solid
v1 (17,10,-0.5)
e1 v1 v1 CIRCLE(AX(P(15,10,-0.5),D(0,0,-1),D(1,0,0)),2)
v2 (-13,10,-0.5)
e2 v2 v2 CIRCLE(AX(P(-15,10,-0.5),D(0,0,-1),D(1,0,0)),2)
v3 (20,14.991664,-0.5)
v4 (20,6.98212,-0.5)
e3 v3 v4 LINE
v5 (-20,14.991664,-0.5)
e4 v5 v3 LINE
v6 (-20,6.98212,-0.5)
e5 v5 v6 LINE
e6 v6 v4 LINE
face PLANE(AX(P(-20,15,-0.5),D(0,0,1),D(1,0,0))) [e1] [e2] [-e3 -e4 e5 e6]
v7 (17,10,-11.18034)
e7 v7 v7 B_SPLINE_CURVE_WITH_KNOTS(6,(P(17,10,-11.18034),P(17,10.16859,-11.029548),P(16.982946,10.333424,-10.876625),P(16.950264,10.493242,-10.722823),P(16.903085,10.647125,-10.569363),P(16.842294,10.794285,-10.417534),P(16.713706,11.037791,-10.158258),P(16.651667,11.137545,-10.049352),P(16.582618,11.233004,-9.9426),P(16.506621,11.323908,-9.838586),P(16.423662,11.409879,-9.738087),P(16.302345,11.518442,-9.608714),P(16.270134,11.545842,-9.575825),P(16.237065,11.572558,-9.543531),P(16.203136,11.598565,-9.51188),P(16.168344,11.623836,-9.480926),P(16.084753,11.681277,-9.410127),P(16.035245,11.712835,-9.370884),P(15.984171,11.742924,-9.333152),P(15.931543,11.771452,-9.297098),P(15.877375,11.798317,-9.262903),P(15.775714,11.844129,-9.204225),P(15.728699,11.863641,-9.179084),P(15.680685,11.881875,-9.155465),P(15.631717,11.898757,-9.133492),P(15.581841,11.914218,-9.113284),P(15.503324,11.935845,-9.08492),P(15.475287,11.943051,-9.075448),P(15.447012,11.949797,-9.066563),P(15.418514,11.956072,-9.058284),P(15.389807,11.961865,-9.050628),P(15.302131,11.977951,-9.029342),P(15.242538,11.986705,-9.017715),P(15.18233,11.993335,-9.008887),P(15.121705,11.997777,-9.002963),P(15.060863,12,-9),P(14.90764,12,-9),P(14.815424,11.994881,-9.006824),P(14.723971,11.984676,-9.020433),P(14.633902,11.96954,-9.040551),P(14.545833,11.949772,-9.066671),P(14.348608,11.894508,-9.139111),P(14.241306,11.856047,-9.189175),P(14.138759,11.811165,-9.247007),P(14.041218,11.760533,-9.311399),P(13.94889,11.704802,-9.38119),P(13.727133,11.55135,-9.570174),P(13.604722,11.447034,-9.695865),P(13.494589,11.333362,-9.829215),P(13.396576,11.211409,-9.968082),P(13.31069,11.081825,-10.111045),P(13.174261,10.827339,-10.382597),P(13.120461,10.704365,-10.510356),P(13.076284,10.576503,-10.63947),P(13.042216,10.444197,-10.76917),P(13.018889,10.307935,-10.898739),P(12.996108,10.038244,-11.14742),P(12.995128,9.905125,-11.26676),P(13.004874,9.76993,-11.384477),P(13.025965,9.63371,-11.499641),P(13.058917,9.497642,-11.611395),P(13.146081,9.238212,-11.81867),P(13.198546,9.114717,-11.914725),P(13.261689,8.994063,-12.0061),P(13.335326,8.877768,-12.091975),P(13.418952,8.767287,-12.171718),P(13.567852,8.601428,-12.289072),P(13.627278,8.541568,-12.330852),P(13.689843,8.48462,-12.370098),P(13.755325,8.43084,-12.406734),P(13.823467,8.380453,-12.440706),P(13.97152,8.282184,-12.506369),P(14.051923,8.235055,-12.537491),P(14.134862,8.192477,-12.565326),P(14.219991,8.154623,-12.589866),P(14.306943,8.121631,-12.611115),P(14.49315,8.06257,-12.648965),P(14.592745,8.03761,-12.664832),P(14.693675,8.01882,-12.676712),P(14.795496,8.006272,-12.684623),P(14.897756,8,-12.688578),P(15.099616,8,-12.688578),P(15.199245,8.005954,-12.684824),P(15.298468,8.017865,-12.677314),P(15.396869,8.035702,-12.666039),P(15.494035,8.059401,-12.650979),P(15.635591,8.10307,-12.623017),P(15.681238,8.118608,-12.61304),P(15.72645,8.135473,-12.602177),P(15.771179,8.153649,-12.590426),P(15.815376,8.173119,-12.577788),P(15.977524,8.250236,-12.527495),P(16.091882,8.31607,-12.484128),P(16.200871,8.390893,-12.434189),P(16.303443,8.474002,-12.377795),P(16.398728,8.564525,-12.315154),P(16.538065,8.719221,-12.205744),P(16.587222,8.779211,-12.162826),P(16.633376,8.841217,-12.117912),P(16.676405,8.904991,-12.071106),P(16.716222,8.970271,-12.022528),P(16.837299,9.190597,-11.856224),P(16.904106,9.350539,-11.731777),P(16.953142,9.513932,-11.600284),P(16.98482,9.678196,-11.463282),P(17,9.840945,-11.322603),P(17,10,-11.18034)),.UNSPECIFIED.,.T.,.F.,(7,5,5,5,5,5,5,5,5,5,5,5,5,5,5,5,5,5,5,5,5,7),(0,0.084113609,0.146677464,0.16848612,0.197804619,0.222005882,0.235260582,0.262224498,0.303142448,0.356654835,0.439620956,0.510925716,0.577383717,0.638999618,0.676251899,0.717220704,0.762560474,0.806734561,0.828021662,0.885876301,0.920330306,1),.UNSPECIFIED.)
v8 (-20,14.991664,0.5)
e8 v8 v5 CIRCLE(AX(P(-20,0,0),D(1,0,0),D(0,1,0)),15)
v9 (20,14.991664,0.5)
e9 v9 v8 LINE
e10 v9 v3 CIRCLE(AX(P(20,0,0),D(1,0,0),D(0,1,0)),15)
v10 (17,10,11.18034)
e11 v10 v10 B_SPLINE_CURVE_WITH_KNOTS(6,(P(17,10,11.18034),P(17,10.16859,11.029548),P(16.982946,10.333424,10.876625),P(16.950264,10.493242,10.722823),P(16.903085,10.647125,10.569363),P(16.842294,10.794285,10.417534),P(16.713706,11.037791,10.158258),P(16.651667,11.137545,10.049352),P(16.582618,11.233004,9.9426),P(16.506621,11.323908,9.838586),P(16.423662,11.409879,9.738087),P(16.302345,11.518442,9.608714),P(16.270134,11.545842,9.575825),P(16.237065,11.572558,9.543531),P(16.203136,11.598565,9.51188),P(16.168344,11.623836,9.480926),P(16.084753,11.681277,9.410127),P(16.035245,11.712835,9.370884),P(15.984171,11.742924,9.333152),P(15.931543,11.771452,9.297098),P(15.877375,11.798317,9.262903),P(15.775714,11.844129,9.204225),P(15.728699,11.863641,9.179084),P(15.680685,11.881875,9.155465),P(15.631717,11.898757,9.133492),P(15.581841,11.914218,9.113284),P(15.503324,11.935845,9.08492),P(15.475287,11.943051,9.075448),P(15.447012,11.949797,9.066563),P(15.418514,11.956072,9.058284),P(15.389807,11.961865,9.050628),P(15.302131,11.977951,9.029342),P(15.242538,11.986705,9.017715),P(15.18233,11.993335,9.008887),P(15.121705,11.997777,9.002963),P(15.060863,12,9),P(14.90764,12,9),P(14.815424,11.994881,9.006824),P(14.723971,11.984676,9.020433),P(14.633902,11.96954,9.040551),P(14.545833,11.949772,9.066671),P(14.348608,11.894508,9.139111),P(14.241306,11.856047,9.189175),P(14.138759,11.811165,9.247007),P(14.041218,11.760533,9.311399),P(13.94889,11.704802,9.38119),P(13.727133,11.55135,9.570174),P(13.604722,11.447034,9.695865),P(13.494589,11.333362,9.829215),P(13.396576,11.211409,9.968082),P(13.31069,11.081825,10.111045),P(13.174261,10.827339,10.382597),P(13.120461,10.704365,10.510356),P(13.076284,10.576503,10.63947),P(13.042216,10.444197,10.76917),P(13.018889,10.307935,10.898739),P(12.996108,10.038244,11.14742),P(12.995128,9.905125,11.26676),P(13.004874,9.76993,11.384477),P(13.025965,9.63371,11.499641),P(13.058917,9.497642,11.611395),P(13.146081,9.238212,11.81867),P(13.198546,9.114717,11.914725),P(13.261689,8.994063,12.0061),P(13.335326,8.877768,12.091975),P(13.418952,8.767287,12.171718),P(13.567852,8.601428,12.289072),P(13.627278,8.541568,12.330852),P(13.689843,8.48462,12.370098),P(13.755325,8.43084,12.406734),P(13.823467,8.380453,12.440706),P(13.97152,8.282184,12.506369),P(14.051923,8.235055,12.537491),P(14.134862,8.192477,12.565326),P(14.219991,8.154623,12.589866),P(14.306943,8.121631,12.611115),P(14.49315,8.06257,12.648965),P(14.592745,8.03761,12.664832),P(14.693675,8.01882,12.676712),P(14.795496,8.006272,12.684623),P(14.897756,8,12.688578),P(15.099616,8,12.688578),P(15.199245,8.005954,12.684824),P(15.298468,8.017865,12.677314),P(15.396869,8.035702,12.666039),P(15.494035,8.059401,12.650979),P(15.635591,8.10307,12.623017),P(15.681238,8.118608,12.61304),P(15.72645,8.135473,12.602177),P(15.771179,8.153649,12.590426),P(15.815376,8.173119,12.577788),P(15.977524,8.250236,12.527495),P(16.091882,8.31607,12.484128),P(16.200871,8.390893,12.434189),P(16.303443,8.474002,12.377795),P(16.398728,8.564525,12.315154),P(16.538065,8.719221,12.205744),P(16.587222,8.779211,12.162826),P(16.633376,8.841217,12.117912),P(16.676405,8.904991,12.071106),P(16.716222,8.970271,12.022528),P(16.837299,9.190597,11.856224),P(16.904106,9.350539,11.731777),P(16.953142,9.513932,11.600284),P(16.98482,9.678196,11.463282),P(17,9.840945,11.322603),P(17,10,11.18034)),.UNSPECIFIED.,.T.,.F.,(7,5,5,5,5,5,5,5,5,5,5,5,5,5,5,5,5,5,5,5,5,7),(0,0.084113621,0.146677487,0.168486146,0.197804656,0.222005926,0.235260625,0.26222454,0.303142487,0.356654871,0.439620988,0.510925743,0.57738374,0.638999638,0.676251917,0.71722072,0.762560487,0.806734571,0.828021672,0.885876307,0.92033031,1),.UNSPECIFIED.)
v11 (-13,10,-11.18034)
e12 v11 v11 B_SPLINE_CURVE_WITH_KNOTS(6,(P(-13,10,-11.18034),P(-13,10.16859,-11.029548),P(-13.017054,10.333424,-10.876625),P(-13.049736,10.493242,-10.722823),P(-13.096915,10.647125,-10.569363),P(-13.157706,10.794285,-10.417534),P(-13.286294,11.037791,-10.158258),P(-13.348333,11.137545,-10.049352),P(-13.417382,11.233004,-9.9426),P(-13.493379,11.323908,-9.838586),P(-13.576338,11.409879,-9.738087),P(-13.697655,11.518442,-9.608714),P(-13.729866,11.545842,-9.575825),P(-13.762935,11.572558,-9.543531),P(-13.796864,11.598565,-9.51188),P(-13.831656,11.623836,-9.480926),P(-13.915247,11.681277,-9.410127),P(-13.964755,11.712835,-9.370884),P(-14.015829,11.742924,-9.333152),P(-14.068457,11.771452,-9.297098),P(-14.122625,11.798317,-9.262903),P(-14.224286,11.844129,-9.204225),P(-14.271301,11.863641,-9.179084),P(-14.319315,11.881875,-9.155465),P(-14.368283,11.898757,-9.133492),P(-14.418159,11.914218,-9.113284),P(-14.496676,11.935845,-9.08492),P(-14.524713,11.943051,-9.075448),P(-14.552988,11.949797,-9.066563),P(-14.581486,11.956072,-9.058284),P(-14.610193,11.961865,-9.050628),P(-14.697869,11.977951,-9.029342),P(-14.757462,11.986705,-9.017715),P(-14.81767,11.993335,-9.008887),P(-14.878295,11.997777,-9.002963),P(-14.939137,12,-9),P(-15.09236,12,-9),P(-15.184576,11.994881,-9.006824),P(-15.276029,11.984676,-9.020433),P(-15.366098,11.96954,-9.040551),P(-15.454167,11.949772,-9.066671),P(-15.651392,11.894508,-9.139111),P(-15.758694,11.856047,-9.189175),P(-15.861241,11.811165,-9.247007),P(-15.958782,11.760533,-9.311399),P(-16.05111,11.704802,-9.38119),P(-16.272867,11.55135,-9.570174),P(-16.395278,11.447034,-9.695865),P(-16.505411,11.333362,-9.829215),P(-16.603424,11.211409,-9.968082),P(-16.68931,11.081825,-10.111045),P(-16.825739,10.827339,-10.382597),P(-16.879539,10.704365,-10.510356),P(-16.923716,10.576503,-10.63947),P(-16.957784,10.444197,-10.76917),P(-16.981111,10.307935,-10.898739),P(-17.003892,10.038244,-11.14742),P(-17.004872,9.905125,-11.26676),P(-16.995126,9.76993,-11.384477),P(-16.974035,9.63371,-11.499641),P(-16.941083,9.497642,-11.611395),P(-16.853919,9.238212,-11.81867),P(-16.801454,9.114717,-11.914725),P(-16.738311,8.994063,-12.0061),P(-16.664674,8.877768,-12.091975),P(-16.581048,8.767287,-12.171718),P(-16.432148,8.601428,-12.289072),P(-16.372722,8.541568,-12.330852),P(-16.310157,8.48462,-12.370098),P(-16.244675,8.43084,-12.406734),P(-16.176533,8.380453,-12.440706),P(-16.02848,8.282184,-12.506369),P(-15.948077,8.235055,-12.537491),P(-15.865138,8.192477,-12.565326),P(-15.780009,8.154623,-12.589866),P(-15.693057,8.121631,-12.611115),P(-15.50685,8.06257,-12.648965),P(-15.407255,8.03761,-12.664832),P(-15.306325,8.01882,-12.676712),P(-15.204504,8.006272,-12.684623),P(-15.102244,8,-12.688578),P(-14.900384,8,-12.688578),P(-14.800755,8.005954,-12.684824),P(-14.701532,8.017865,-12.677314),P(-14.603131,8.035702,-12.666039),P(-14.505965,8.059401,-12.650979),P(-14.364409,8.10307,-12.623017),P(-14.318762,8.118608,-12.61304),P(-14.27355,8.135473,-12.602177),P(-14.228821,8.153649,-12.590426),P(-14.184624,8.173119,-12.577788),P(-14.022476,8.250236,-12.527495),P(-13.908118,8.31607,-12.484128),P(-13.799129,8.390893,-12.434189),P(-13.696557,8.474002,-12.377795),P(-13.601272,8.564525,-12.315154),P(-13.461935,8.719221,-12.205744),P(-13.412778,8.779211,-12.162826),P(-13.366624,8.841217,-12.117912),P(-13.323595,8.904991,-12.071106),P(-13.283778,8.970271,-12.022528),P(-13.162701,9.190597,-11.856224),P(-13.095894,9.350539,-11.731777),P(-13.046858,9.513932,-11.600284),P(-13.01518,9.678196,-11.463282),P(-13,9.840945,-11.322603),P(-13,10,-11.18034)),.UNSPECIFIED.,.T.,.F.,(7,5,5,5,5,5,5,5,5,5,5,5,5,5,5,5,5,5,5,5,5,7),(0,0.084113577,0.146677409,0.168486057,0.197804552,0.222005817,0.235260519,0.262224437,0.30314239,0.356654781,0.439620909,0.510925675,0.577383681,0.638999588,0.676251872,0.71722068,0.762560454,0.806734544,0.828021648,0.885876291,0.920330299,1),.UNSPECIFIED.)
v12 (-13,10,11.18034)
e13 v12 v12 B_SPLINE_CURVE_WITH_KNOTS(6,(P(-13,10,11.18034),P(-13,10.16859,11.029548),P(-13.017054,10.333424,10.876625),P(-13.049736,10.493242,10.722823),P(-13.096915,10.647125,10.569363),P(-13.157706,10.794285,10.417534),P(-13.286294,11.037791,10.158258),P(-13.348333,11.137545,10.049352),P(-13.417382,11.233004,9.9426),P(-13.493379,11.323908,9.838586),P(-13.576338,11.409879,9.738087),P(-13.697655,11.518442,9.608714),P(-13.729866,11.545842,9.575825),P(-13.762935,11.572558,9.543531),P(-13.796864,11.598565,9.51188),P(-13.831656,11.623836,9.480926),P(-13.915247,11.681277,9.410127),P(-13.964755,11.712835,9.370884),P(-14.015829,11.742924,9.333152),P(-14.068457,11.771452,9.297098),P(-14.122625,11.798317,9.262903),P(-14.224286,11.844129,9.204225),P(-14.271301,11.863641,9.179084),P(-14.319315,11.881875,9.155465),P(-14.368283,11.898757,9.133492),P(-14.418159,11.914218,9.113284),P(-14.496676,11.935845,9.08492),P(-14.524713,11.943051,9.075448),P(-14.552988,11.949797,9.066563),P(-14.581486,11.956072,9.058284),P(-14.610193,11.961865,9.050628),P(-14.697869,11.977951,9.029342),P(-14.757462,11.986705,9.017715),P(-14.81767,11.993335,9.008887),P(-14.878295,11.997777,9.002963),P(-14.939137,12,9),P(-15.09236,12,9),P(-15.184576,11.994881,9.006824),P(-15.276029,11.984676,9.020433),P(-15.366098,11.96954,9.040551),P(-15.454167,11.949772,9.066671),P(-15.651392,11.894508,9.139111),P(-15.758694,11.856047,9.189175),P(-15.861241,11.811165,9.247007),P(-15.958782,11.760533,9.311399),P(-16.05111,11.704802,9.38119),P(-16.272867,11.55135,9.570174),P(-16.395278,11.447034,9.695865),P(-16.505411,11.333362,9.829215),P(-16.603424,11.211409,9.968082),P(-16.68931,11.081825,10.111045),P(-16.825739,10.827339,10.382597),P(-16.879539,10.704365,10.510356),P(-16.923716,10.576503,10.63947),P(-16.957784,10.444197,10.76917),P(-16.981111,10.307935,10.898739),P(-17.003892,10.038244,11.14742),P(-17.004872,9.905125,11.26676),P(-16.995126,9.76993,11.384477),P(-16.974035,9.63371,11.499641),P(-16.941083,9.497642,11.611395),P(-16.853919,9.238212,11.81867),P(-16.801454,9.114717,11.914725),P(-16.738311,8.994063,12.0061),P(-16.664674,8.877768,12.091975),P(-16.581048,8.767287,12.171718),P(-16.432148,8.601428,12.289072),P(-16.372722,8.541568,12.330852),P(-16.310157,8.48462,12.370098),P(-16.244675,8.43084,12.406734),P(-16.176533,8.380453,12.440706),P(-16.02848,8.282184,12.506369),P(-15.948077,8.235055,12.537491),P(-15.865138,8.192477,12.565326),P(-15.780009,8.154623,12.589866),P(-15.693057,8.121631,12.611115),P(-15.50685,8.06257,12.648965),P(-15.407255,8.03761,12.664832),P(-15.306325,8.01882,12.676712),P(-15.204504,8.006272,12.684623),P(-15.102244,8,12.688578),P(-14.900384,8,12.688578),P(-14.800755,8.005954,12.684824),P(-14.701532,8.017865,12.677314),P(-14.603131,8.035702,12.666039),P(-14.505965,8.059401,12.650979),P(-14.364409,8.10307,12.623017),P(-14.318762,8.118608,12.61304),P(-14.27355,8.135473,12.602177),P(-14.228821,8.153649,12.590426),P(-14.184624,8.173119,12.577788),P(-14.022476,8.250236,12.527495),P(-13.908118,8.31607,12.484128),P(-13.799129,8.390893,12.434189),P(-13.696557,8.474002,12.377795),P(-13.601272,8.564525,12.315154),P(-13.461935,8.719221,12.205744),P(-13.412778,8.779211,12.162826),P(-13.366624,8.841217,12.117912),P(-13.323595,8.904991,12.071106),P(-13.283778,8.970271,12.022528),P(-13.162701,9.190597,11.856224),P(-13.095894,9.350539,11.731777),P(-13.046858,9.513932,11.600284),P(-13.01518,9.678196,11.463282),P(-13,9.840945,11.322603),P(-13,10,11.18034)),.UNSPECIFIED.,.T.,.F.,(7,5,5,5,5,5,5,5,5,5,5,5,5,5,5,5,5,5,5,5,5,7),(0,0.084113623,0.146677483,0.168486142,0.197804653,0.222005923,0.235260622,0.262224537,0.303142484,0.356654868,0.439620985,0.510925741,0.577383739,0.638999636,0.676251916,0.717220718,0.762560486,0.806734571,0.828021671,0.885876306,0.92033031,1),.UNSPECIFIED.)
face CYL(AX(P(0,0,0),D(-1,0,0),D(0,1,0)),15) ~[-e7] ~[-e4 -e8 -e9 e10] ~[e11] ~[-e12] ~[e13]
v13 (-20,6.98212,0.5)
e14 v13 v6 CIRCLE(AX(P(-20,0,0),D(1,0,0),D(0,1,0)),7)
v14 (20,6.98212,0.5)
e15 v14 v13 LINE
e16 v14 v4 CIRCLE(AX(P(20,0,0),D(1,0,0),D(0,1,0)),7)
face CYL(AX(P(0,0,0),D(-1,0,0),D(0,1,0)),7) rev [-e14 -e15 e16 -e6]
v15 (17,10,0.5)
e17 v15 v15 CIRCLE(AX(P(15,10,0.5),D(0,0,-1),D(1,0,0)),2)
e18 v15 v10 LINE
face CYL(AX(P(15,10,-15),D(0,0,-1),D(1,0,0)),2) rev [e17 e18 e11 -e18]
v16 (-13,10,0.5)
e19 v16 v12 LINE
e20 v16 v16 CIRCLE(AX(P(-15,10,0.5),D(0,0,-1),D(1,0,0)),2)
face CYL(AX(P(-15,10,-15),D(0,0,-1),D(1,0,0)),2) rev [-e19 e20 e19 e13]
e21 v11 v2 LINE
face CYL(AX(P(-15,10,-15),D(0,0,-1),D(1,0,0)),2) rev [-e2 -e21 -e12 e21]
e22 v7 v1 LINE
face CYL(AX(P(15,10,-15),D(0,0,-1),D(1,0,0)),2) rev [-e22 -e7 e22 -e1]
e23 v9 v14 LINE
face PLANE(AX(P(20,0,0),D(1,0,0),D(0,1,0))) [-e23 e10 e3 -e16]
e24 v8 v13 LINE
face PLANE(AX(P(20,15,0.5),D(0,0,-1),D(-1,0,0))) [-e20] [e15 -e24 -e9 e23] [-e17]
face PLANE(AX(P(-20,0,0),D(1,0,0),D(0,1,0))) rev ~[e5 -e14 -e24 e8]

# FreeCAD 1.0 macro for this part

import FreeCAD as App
import Part
import Sketcher

doc = App.newDocument("Part")
body = doc.addObject("PartDesign::Body", "Body")

sketch1 = doc.addObject("Sketcher::SketchObject", "Sketch")
body.addObject(sketch1)
sketch1.AttachmentSupport = (doc.YZ_Plane, [""])
sketch1.MapMode = "FlatFace"
sketch1.addGeometry(Part.Circle(App.Vector(0, 0, 0), App.Vector(0, 0, 1), 15), False)
sketch1.addGeometry(Part.Circle(App.Vector(0, 0, 0), App.Vector(0, 0, 1), 7), False)
sketch1.addConstraint(Sketcher.Constraint("Coincident", 0, 3, -1, 1))
sketch1.addConstraint(Sketcher.Constraint("Coincident", 1, 3, -1, 1))
sketch1.addConstraint(Sketcher.Constraint("Diameter", 0, 30.0))
sketch1.addConstraint(Sketcher.Constraint("Diameter", 1, 14.0))
pad1 = doc.addObject("PartDesign::Pad", "Pad")
body.addObject(pad1)
pad1.Profile = sketch1
pad1.Type = "TwoLengths"
pad1.Length = 20
pad1.Length2 = 20

sketch2 = doc.addObject("Sketcher::SketchObject", "Sketch001")
body.addObject(sketch2)
sketch2.AttachmentSupport = (doc.XZ_Plane, [""])
sketch2.MapMode = "FlatFace"
sketch2.AttachmentOffset = App.Placement(App.Vector(0, 0, -15), App.Rotation())
sketch2.addGeometry(Part.LineSegment(App.Vector(-20, 0.5, 0), App.Vector(20, 0.5, 0)), False)
sketch2.addGeometry(Part.LineSegment(App.Vector(20, 0.5, 0), App.Vector(20, -0.5, 0)), False)
sketch2.addGeometry(Part.LineSegment(App.Vector(20, -0.5, 0), App.Vector(-20, -0.5, 0)), False)
sketch2.addGeometry(Part.LineSegment(App.Vector(-20, -0.5, 0), App.Vector(-20, 0.5, 0)), False)
sketch2.addConstraint(Sketcher.Constraint("Coincident", 0, 2, 1, 1))
sketch2.addConstraint(Sketcher.Constraint("Coincident", 1, 2, 2, 1))
sketch2.addConstraint(Sketcher.Constraint("Coincident", 2, 2, 3, 1))
sketch2.addConstraint(Sketcher.Constraint("Coincident", 3, 2, 0, 1))
sketch2.addConstraint(Sketcher.Constraint("Horizontal", 0))
sketch2.addConstraint(Sketcher.Constraint("Vertical", 1))
sketch2.addConstraint(Sketcher.Constraint("Horizontal", 2))
sketch2.addConstraint(Sketcher.Constraint("Vertical", 3))
sketch2.addConstraint(Sketcher.Constraint("Symmetric", 0, 2, 2, 2, -1, 1))
sketch2.addConstraint(Sketcher.Constraint("DistanceY", -1, 1, 0, 2, 0.5))
sketch2.addConstraint(Sketcher.Constraint("DistanceX", 0, 1, 0, 2, 40.0))
pocket1 = doc.addObject("PartDesign::Pocket", "Pocket")
body.addObject(pocket1)
pocket1.Profile = sketch2
pocket1.Length = 8.0179
pocket1.Reversed = True

sketch3 = doc.addObject("Sketcher::SketchObject", "Sketch002")
body.addObject(sketch3)
sketch3.AttachmentSupport = (doc.XY_Plane, [""])
sketch3.MapMode = "FlatFace"
sketch3.AttachmentOffset = App.Placement(App.Vector(0, 0, -15), App.Rotation())
sketch3.addGeometry(Part.Circle(App.Vector(-15, 10, 0), App.Vector(0, 0, 1), 2), False)
sketch3.addGeometry(Part.Circle(App.Vector(15, 10, 0), App.Vector(0, 0, 1), 2), False)
sketch3.addConstraint(Sketcher.Constraint("Equal", 0, 1))
sketch3.addConstraint(Sketcher.Constraint("Symmetric", 0, 3, 1, 3, -2))
sketch3.addConstraint(Sketcher.Constraint("Diameter", 0, 4.0))
sketch3.addConstraint(Sketcher.Constraint("DistanceX", 0, 3, -1, 1, 15.0))
sketch3.addConstraint(Sketcher.Constraint("DistanceY", -1, 1, 0, 3, 10.0))
pocket2 = doc.addObject("PartDesign::Pocket", "Pocket001")
body.addObject(pocket2)
pocket2.Profile = sketch3
pocket2.Type = "ThroughAll"
pocket2.Reversed = True

doc.recompute()
